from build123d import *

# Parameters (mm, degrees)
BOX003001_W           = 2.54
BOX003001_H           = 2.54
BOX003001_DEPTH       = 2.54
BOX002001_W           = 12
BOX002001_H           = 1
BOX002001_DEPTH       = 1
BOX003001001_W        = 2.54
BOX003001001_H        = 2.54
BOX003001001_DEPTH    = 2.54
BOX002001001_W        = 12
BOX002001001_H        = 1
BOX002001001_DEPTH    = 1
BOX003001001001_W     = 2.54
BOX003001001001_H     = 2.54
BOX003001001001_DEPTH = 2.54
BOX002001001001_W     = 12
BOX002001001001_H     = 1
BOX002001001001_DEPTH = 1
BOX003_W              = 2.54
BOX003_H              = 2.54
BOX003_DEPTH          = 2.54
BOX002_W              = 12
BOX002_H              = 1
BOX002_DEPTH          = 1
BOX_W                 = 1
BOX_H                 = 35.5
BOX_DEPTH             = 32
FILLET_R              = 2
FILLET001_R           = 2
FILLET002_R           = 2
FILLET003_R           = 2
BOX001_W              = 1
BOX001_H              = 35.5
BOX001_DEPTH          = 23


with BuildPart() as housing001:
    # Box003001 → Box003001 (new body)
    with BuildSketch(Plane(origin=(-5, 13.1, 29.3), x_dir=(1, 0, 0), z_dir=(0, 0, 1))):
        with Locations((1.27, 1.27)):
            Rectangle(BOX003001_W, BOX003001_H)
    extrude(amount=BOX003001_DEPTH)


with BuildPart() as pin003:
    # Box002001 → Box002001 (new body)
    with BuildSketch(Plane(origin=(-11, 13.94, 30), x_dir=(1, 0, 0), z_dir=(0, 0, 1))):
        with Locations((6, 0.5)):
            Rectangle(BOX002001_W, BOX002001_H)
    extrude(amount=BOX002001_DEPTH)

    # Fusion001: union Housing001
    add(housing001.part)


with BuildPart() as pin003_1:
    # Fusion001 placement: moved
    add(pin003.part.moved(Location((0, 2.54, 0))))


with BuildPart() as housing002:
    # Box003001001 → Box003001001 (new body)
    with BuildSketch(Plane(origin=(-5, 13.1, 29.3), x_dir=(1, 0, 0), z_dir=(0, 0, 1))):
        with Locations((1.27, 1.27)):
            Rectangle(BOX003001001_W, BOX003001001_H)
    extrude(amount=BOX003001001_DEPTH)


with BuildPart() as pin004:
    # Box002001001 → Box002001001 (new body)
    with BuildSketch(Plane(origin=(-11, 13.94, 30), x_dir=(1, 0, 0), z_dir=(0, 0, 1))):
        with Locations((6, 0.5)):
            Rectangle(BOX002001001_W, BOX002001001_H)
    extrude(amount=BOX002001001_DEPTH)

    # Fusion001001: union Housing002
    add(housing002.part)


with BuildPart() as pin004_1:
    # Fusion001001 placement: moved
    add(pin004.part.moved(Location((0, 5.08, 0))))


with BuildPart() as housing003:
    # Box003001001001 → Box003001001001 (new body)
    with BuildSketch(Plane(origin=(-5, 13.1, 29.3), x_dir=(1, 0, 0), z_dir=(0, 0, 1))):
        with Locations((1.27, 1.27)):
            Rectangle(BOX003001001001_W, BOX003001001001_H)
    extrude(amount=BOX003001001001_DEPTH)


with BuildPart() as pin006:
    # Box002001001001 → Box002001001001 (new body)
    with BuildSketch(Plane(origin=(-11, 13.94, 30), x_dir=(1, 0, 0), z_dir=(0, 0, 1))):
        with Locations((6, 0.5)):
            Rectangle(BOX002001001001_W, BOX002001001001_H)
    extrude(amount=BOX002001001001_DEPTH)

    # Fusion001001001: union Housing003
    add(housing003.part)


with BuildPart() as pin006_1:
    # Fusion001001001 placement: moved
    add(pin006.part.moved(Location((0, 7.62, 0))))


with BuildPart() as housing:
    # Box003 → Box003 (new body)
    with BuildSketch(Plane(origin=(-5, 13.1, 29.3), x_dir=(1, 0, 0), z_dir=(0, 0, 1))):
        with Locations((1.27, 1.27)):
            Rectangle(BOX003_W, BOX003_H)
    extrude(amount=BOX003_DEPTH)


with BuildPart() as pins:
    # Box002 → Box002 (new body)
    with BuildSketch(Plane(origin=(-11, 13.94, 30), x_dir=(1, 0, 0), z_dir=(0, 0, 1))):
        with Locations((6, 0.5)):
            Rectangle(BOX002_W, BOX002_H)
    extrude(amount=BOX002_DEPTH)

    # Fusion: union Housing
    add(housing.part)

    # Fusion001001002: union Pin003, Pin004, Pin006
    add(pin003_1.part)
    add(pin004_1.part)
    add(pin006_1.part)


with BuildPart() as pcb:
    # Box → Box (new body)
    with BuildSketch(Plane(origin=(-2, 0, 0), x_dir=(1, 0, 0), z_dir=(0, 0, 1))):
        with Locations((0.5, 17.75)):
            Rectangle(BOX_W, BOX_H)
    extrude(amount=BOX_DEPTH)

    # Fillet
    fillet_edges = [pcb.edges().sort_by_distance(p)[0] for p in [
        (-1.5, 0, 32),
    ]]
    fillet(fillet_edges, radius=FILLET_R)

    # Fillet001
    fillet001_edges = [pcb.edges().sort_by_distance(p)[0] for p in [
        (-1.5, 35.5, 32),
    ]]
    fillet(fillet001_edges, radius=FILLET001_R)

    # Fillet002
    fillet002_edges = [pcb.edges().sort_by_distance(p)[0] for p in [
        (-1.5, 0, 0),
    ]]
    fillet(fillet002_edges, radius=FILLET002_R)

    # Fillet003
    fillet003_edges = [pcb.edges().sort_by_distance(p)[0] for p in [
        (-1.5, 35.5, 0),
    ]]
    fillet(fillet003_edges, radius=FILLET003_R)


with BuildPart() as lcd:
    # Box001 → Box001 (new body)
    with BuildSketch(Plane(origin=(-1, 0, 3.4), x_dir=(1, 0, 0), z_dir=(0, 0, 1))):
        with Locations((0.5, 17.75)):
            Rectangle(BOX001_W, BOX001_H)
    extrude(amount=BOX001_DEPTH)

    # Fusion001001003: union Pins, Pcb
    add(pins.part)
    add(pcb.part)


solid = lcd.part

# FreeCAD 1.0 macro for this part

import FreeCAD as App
import Part
import Sketcher
from FreeCAD import Vector
Q = App.Units.Quantity


def edges_at(feature, points):
    """Names of the edges that pass closest to the given points."""
    edges = feature.Shape.Edges
    near = lambda p: min(range(len(edges)), key=lambda i: edges[i].distToShape(Part.Vertex(*p))[0])
    return sorted({f"Edge{near(p) + 1}" for p in points})


def add_polygon(sketch, points):
    """Adds a closed chain of lines whose ends are joined by coincident constraints."""
    first, n = sketch.GeometryCount, len(points)
    for a, b in zip(points, points[1:] + points[:1]):
        sketch.addGeometry(Part.LineSegment(App.Vector(*a, 0), App.Vector(*b, 0)), False)
    for i in range(n):
        sketch.addConstraint(Sketcher.Constraint("Coincident", first + i, 2, first + (i + 1) % n, 1))

doc = App.newDocument("Part")
body = doc.addObject("PartDesign::Body", "Body")

# Sketch on XY plane
sketch1 = body.newObject("Sketcher::SketchObject", "Sketch")
sketch1.AttachmentSupport = (doc.getObject("XY_Plane"), [""])
sketch1.MapMode = "FlatFace"
sketch1.AttachmentOffset = App.Placement(Vector(0, 0, 29.3), App.Rotation())
add_polygon(sketch1, [(-5, 15.6), (-5, 13.1), (-2.5, 13.1), (-2.5, 15.6)])  # lines 0-3
sketch1.addConstraint(Sketcher.Constraint("Vertical", 0))
sketch1.addConstraint(Sketcher.Constraint("Horizontal", 1))
sketch1.addConstraint(Sketcher.Constraint("Vertical", 2))
sketch1.addConstraint(Sketcher.Constraint("Horizontal", 3))
sketch1.addConstraint(Sketcher.Constraint("Equal", 3, 0))
sketch1.addConstraint(Sketcher.Constraint("DistanceX", 0, 2, -1, 1, Q("5 mm")))
sketch1.addConstraint(Sketcher.Constraint("DistanceX", 1, 1, 1, 2, Q("2.54 mm")))
sketch1.addConstraint(Sketcher.Constraint("DistanceY", -1, 1, 0, 2, Q("13.1 mm")))
pad1 = body.newObject("PartDesign::Pad", "Pad")
pad1.Profile = sketch1
pad1.Length = 2.54
body2 = doc.addObject("PartDesign::Body", "Body001")

# Sketch on XY plane
sketch2 = body2.newObject("Sketcher::SketchObject", "Sketch001")
sketch2.AttachmentSupport = (doc.getObject("XY_Plane001"), [""])
sketch2.MapMode = "FlatFace"
sketch2.AttachmentOffset = App.Placement(Vector(0, 0, 30), App.Rotation())
add_polygon(sketch2, [(-11, 14.9), (-11, 13.9), (1, 13.9), (1, 14.9)])  # lines 0-3
sketch2.addConstraint(Sketcher.Constraint("Vertical", 0))
sketch2.addConstraint(Sketcher.Constraint("Horizontal", 1))
sketch2.addConstraint(Sketcher.Constraint("Vertical", 2))
sketch2.addConstraint(Sketcher.Constraint("Horizontal", 3))
sketch2.addConstraint(Sketcher.Constraint("DistanceX", 1, 1, 1, 2, Q("12 mm")))
sketch2.addConstraint(Sketcher.Constraint("DistanceY", 0, 2, 0, 1, Q("1 mm")))
sketch2.addConstraint(Sketcher.Constraint("DistanceX", 0, 2, -1, 1, Q("11 mm")))
sketch2.addConstraint(Sketcher.Constraint("DistanceY", -1, 1, 0, 2, Q("13.94 mm")))
pad2 = body2.newObject("PartDesign::Pad", "Pad001")
pad2.Profile = sketch2
pad2.Length = 1
doc.recompute()

boolean = body2.newObject("PartDesign::Boolean", "Boolean")
boolean.Type = "Fuse"
boolean.addObjects([body])
body3 = doc.addObject("PartDesign::Body", "Body002")
doc.recompute()

body2.Placement = App.Placement(Vector(0, 2.54, 0), App.Rotation(Vector(0, 0, 1), 0))
boolean2 = body3.newObject("PartDesign::Boolean", "Boolean001")
boolean2.Type = "Fuse"
boolean2.addObjects([body2])
body4 = doc.addObject("PartDesign::Body", "Body003")

# Sketch on XY plane
sketch3 = body4.newObject("Sketcher::SketchObject", "Sketch002")
sketch3.AttachmentSupport = (doc.getObject("XY_Plane003"), [""])
sketch3.MapMode = "FlatFace"
sketch3.AttachmentOffset = App.Placement(Vector(0, 0, 29.3), App.Rotation())
add_polygon(sketch3, [(-5, 15.6), (-5, 13.1), (-2.5, 13.1), (-2.5, 15.6)])  # lines 0-3
sketch3.addConstraint(Sketcher.Constraint("Vertical", 0))
sketch3.addConstraint(Sketcher.Constraint("Horizontal", 1))
sketch3.addConstraint(Sketcher.Constraint("Vertical", 2))
sketch3.addConstraint(Sketcher.Constraint("Horizontal", 3))
sketch3.addConstraint(Sketcher.Constraint("Equal", 3, 0))
sketch3.addConstraint(Sketcher.Constraint("DistanceX", 0, 2, -1, 1, Q("5 mm")))
sketch3.addConstraint(Sketcher.Constraint("DistanceX", 1, 1, 1, 2, Q("2.54 mm")))
sketch3.addConstraint(Sketcher.Constraint("DistanceY", -1, 1, 0, 2, Q("13.1 mm")))
pad3 = body4.newObject("PartDesign::Pad", "Pad002")
pad3.Profile = sketch3
pad3.Length = 2.54
body5 = doc.addObject("PartDesign::Body", "Body004")

# Sketch on XY plane
sketch4 = body5.newObject("Sketcher::SketchObject", "Sketch003")
sketch4.AttachmentSupport = (doc.getObject("XY_Plane004"), [""])
sketch4.MapMode = "FlatFace"
sketch4.AttachmentOffset = App.Placement(Vector(0, 0, 30), App.Rotation())
add_polygon(sketch4, [(-11, 14.9), (-11, 13.9), (1, 13.9), (1, 14.9)])  # lines 0-3
sketch4.addConstraint(Sketcher.Constraint("Vertical", 0))
sketch4.addConstraint(Sketcher.Constraint("Horizontal", 1))
sketch4.addConstraint(Sketcher.Constraint("Vertical", 2))
sketch4.addConstraint(Sketcher.Constraint("Horizontal", 3))
sketch4.addConstraint(Sketcher.Constraint("DistanceX", 1, 1, 1, 2, Q("12 mm")))
sketch4.addConstraint(Sketcher.Constraint("DistanceY", 0, 2, 0, 1, Q("1 mm")))
sketch4.addConstraint(Sketcher.Constraint("DistanceX", 0, 2, -1, 1, Q("11 mm")))
sketch4.addConstraint(Sketcher.Constraint("DistanceY", -1, 1, 0, 2, Q("13.94 mm")))
pad4 = body5.newObject("PartDesign::Pad", "Pad003")
pad4.Profile = sketch4
pad4.Length = 1
doc.recompute()

boolean3 = body5.newObject("PartDesign::Boolean", "Boolean002")
boolean3.Type = "Fuse"
boolean3.addObjects([body4])
body6 = doc.addObject("PartDesign::Body", "Body005")
doc.recompute()

body5.Placement = App.Placement(Vector(0, 5.08, 0), App.Rotation(Vector(0, 0, 1), 0))
boolean4 = body6.newObject("PartDesign::Boolean", "Boolean003")
boolean4.Type = "Fuse"
boolean4.addObjects([body5])
body7 = doc.addObject("PartDesign::Body", "Body006")

# Sketch on XY plane
sketch5 = body7.newObject("Sketcher::SketchObject", "Sketch004")
sketch5.AttachmentSupport = (doc.getObject("XY_Plane006"), [""])
sketch5.MapMode = "FlatFace"
sketch5.AttachmentOffset = App.Placement(Vector(0, 0, 29.3), App.Rotation())
add_polygon(sketch5, [(-5, 15.6), (-5, 13.1), (-2.5, 13.1), (-2.5, 15.6)])  # lines 0-3
sketch5.addConstraint(Sketcher.Constraint("Vertical", 0))
sketch5.addConstraint(Sketcher.Constraint("Horizontal", 1))
sketch5.addConstraint(Sketcher.Constraint("Vertical", 2))
sketch5.addConstraint(Sketcher.Constraint("Horizontal", 3))
sketch5.addConstraint(Sketcher.Constraint("Equal", 3, 0))
sketch5.addConstraint(Sketcher.Constraint("DistanceX", 0, 2, -1, 1, Q("5 mm")))
sketch5.addConstraint(Sketcher.Constraint("DistanceX", 1, 1, 1, 2, Q("2.54 mm")))
sketch5.addConstraint(Sketcher.Constraint("DistanceY", -1, 1, 0, 2, Q("13.1 mm")))
pad5 = body7.newObject("PartDesign::Pad", "Pad004")
pad5.Profile = sketch5
pad5.Length = 2.54
body8 = doc.addObject("PartDesign::Body", "Body007")

# Sketch on XY plane
sketch6 = body8.newObject("Sketcher::SketchObject", "Sketch005")
sketch6.AttachmentSupport = (doc.getObject("XY_Plane007"), [""])
sketch6.MapMode = "FlatFace"
sketch6.AttachmentOffset = App.Placement(Vector(0, 0, 30), App.Rotation())
add_polygon(sketch6, [(-11, 14.9), (-11, 13.9), (1, 13.9), (1, 14.9)])  # lines 0-3
sketch6.addConstraint(Sketcher.Constraint("Vertical", 0))
sketch6.addConstraint(Sketcher.Constraint("Horizontal", 1))
sketch6.addConstraint(Sketcher.Constraint("Vertical", 2))
sketch6.addConstraint(Sketcher.Constraint("Horizontal", 3))
sketch6.addConstraint(Sketcher.Constraint("DistanceX", 1, 1, 1, 2, Q("12 mm")))
sketch6.addConstraint(Sketcher.Constraint("DistanceY", 0, 2, 0, 1, Q("1 mm")))
sketch6.addConstraint(Sketcher.Constraint("DistanceX", 0, 2, -1, 1, Q("11 mm")))
sketch6.addConstraint(Sketcher.Constraint("DistanceY", -1, 1, 0, 2, Q("13.94 mm")))
pad6 = body8.newObject("PartDesign::Pad", "Pad005")
pad6.Profile = sketch6
pad6.Length = 1
doc.recompute()

boolean5 = body8.newObject("PartDesign::Boolean", "Boolean004")
boolean5.Type = "Fuse"
boolean5.addObjects([body7])
body9 = doc.addObject("PartDesign::Body", "Body008")
doc.recompute()

body8.Placement = App.Placement(Vector(0, 7.62, 0), App.Rotation(Vector(0, 0, 1), 0))
boolean6 = body9.newObject("PartDesign::Boolean", "Boolean005")
boolean6.Type = "Fuse"
boolean6.addObjects([body8])
body10 = doc.addObject("PartDesign::Body", "Body009")

# Sketch on XY plane
sketch7 = body10.newObject("Sketcher::SketchObject", "Sketch006")
sketch7.AttachmentSupport = (doc.getObject("XY_Plane009"), [""])
sketch7.MapMode = "FlatFace"
sketch7.AttachmentOffset = App.Placement(Vector(0, 0, 29.3), App.Rotation())
add_polygon(sketch7, [(-5, 15.6), (-5, 13.1), (-2.5, 13.1), (-2.5, 15.6)])  # lines 0-3
sketch7.addConstraint(Sketcher.Constraint("Vertical", 0))
sketch7.addConstraint(Sketcher.Constraint("Horizontal", 1))
sketch7.addConstraint(Sketcher.Constraint("Vertical", 2))
sketch7.addConstraint(Sketcher.Constraint("Horizontal", 3))
sketch7.addConstraint(Sketcher.Constraint("Equal", 3, 0))
sketch7.addConstraint(Sketcher.Constraint("DistanceX", 0, 2, -1, 1, Q("5 mm")))
sketch7.addConstraint(Sketcher.Constraint("DistanceX", 1, 1, 1, 2, Q("2.54 mm")))
sketch7.addConstraint(Sketcher.Constraint("DistanceY", -1, 1, 0, 2, Q("13.1 mm")))
pad7 = body10.newObject("PartDesign::Pad", "Pad006")
pad7.Profile = sketch7
pad7.Length = 2.54
body11 = doc.addObject("PartDesign::Body", "Body010")

# Sketch on XY plane
sketch8 = body11.newObject("Sketcher::SketchObject", "Sketch007")
sketch8.AttachmentSupport = (doc.getObject("XY_Plane010"), [""])
sketch8.MapMode = "FlatFace"
sketch8.AttachmentOffset = App.Placement(Vector(0, 0, 30), App.Rotation())
add_polygon(sketch8, [(-11, 14.9), (-11, 13.9), (1, 13.9), (1, 14.9)])  # lines 0-3
sketch8.addConstraint(Sketcher.Constraint("Vertical", 0))
sketch8.addConstraint(Sketcher.Constraint("Horizontal", 1))
sketch8.addConstraint(Sketcher.Constraint("Vertical", 2))
sketch8.addConstraint(Sketcher.Constraint("Horizontal", 3))
sketch8.addConstraint(Sketcher.Constraint("DistanceX", 1, 1, 1, 2, Q("12 mm")))
sketch8.addConstraint(Sketcher.Constraint("DistanceY", 0, 2, 0, 1, Q("1 mm")))
sketch8.addConstraint(Sketcher.Constraint("DistanceX", 0, 2, -1, 1, Q("11 mm")))
sketch8.addConstraint(Sketcher.Constraint("DistanceY", -1, 1, 0, 2, Q("13.94 mm")))
pad8 = body11.newObject("PartDesign::Pad", "Pad007")
pad8.Profile = sketch8
pad8.Length = 1
doc.recompute()

boolean7 = body11.newObject("PartDesign::Boolean", "Boolean006")
boolean7.Type = "Fuse"
boolean7.addObjects([body10])
doc.recompute()

boolean8 = body11.newObject("PartDesign::Boolean", "Boolean007")
boolean8.Type = "Fuse"
boolean8.addObjects([body3])
doc.recompute()

boolean9 = body11.newObject("PartDesign::Boolean", "Boolean008")
boolean9.Type = "Fuse"
boolean9.addObjects([body6])
doc.recompute()

boolean10 = body11.newObject("PartDesign::Boolean", "Boolean009")
boolean10.Type = "Fuse"
boolean10.addObjects([body9])
body12 = doc.addObject("PartDesign::Body", "Body011")

# Sketch on XY plane
sketch9 = body12.newObject("Sketcher::SketchObject", "Sketch008")
sketch9.AttachmentSupport = (doc.getObject("XY_Plane011"), [""])
sketch9.MapMode = "FlatFace"
add_polygon(sketch9, [(-2, 35.5), (-2, 0), (-1, 0), (-1, 35.5)])  # lines 0-3
sketch9.addConstraint(Sketcher.Constraint("Vertical", 0))
sketch9.addConstraint(Sketcher.Constraint("Horizontal", 1))
sketch9.addConstraint(Sketcher.Constraint("Vertical", 2))
sketch9.addConstraint(Sketcher.Constraint("Horizontal", 3))
sketch9.addConstraint(Sketcher.Constraint("PointOnObject", 0, 2, -1))
sketch9.addConstraint(Sketcher.Constraint("DistanceX", 1, 1, 1, 2, Q("1 mm")))
sketch9.addConstraint(Sketcher.Constraint("DistanceY", 0, 2, 0, 1, Q("35.5 mm")))
sketch9.addConstraint(Sketcher.Constraint("DistanceX", 0, 2, -1, 1, Q("2 mm")))
pad9 = body12.newObject("PartDesign::Pad", "Pad008")
pad9.Profile = sketch9
pad9.Length = 32
doc.recompute()

fillet = body12.newObject("PartDesign::Fillet", "Fillet")
fillet.Base = (pad9, edges_at(pad9, [(-1.5, 0, 32)]))
fillet.Radius = 2
doc.recompute()

fillet2 = body12.newObject("PartDesign::Fillet", "Fillet001")
fillet2.Base = (fillet, edges_at(fillet, [(-1.5, 35.5, 32)]))
fillet2.Radius = 2
doc.recompute()

fillet3 = body12.newObject("PartDesign::Fillet", "Fillet002")
fillet3.Base = (fillet2, edges_at(fillet2, [(-1.5, 0, 0)]))
fillet3.Radius = 2
doc.recompute()

fillet4 = body12.newObject("PartDesign::Fillet", "Fillet003")
fillet4.Base = (fillet3, edges_at(fillet3, [(-1.5, 35.5, 0)]))
fillet4.Radius = 2
body13 = doc.addObject("PartDesign::Body", "Body012")
body13.AllowCompound = True

# Sketch on XY plane
sketch10 = body13.newObject("Sketcher::SketchObject", "Sketch009")
sketch10.AttachmentSupport = (doc.getObject("XY_Plane012"), [""])
sketch10.MapMode = "FlatFace"
sketch10.AttachmentOffset = App.Placement(Vector(0, 0, 3.4), App.Rotation())
add_polygon(sketch10, [(-1, 35.5), (-1, 0), (0, 0), (0, 35.5)])  # lines 0-3
sketch10.addConstraint(Sketcher.Constraint("Vertical", 0))
sketch10.addConstraint(Sketcher.Constraint("Horizontal", 1))
sketch10.addConstraint(Sketcher.Constraint("Vertical", 2))
sketch10.addConstraint(Sketcher.Constraint("Horizontal", 3))
sketch10.addConstraint(Sketcher.Constraint("Coincident", 1, 2, -1, 1))
sketch10.addConstraint(Sketcher.Constraint("DistanceX", 1, 1, 1, 2, Q("1 mm")))
sketch10.addConstraint(Sketcher.Constraint("DistanceY", 0, 2, 0, 1, Q("35.5 mm")))
pad10 = body13.newObject("PartDesign::Pad", "Pad009")
pad10.Profile = sketch10
pad10.Length = 23
doc.recompute()

boolean11 = body13.newObject("PartDesign::Boolean", "Boolean010")
boolean11.Type = "Fuse"
boolean11.addObjects([body11])
doc.recompute()

boolean12 = body13.newObject("PartDesign::Boolean", "Boolean011")
boolean12.Type = "Fuse"
boolean12.addObjects([body12])

doc.recompute()
